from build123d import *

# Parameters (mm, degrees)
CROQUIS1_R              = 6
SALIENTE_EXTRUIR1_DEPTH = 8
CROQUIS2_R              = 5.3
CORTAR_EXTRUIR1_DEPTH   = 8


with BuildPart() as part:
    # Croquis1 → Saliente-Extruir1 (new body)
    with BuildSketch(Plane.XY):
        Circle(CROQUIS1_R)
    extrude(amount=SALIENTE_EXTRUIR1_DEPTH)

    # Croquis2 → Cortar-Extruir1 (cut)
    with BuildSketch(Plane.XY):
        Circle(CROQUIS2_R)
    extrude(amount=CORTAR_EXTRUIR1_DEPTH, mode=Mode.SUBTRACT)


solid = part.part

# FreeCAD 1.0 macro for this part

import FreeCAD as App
import Part
import Sketcher
from FreeCAD import Vector

doc = App.newDocument("Part")
body = doc.addObject("PartDesign::Body", "Body")

# Sketch on XY plane
sketch1 = body.newObject("Sketcher::SketchObject", "Sketch")
sketch1.AttachmentSupport = (doc.getObject("XY_Plane"), [""])
sketch1.MapMode = "FlatFace"
sketch1.addGeometry(Part.Circle(Vector(0, 0, 0), Vector(0, 0, 1), 6), False)
sketch1.addConstraint([
    Sketcher.Constraint("Coincident", 0, 3, -1, 1),
    Sketcher.Constraint("Diameter", 0, 12.0),
])
pad1 = body.newObject("PartDesign::Pad", "Pad")
pad1.Profile = sketch1
pad1.Length = 8

# Sketch on XY plane
sketch2 = body.newObject("Sketcher::SketchObject", "Sketch001")
sketch2.AttachmentSupport = (doc.getObject("XY_Plane"), [""])
sketch2.MapMode = "FlatFace"
sketch2.addGeometry(Part.Circle(Vector(0, 0, 0), Vector(0, 0, 1), 5), False)
sketch2.addConstraint([
    Sketcher.Constraint("Coincident", 0, 3, -1, 1),
    Sketcher.Constraint("Diameter", 0, 10.6),
])
pocket1 = body.newObject("PartDesign::Pocket", "Pocket")
pocket1.Profile = sketch2
pocket1.Length = 8
pocket1.Reversed = True

doc.recompute()
